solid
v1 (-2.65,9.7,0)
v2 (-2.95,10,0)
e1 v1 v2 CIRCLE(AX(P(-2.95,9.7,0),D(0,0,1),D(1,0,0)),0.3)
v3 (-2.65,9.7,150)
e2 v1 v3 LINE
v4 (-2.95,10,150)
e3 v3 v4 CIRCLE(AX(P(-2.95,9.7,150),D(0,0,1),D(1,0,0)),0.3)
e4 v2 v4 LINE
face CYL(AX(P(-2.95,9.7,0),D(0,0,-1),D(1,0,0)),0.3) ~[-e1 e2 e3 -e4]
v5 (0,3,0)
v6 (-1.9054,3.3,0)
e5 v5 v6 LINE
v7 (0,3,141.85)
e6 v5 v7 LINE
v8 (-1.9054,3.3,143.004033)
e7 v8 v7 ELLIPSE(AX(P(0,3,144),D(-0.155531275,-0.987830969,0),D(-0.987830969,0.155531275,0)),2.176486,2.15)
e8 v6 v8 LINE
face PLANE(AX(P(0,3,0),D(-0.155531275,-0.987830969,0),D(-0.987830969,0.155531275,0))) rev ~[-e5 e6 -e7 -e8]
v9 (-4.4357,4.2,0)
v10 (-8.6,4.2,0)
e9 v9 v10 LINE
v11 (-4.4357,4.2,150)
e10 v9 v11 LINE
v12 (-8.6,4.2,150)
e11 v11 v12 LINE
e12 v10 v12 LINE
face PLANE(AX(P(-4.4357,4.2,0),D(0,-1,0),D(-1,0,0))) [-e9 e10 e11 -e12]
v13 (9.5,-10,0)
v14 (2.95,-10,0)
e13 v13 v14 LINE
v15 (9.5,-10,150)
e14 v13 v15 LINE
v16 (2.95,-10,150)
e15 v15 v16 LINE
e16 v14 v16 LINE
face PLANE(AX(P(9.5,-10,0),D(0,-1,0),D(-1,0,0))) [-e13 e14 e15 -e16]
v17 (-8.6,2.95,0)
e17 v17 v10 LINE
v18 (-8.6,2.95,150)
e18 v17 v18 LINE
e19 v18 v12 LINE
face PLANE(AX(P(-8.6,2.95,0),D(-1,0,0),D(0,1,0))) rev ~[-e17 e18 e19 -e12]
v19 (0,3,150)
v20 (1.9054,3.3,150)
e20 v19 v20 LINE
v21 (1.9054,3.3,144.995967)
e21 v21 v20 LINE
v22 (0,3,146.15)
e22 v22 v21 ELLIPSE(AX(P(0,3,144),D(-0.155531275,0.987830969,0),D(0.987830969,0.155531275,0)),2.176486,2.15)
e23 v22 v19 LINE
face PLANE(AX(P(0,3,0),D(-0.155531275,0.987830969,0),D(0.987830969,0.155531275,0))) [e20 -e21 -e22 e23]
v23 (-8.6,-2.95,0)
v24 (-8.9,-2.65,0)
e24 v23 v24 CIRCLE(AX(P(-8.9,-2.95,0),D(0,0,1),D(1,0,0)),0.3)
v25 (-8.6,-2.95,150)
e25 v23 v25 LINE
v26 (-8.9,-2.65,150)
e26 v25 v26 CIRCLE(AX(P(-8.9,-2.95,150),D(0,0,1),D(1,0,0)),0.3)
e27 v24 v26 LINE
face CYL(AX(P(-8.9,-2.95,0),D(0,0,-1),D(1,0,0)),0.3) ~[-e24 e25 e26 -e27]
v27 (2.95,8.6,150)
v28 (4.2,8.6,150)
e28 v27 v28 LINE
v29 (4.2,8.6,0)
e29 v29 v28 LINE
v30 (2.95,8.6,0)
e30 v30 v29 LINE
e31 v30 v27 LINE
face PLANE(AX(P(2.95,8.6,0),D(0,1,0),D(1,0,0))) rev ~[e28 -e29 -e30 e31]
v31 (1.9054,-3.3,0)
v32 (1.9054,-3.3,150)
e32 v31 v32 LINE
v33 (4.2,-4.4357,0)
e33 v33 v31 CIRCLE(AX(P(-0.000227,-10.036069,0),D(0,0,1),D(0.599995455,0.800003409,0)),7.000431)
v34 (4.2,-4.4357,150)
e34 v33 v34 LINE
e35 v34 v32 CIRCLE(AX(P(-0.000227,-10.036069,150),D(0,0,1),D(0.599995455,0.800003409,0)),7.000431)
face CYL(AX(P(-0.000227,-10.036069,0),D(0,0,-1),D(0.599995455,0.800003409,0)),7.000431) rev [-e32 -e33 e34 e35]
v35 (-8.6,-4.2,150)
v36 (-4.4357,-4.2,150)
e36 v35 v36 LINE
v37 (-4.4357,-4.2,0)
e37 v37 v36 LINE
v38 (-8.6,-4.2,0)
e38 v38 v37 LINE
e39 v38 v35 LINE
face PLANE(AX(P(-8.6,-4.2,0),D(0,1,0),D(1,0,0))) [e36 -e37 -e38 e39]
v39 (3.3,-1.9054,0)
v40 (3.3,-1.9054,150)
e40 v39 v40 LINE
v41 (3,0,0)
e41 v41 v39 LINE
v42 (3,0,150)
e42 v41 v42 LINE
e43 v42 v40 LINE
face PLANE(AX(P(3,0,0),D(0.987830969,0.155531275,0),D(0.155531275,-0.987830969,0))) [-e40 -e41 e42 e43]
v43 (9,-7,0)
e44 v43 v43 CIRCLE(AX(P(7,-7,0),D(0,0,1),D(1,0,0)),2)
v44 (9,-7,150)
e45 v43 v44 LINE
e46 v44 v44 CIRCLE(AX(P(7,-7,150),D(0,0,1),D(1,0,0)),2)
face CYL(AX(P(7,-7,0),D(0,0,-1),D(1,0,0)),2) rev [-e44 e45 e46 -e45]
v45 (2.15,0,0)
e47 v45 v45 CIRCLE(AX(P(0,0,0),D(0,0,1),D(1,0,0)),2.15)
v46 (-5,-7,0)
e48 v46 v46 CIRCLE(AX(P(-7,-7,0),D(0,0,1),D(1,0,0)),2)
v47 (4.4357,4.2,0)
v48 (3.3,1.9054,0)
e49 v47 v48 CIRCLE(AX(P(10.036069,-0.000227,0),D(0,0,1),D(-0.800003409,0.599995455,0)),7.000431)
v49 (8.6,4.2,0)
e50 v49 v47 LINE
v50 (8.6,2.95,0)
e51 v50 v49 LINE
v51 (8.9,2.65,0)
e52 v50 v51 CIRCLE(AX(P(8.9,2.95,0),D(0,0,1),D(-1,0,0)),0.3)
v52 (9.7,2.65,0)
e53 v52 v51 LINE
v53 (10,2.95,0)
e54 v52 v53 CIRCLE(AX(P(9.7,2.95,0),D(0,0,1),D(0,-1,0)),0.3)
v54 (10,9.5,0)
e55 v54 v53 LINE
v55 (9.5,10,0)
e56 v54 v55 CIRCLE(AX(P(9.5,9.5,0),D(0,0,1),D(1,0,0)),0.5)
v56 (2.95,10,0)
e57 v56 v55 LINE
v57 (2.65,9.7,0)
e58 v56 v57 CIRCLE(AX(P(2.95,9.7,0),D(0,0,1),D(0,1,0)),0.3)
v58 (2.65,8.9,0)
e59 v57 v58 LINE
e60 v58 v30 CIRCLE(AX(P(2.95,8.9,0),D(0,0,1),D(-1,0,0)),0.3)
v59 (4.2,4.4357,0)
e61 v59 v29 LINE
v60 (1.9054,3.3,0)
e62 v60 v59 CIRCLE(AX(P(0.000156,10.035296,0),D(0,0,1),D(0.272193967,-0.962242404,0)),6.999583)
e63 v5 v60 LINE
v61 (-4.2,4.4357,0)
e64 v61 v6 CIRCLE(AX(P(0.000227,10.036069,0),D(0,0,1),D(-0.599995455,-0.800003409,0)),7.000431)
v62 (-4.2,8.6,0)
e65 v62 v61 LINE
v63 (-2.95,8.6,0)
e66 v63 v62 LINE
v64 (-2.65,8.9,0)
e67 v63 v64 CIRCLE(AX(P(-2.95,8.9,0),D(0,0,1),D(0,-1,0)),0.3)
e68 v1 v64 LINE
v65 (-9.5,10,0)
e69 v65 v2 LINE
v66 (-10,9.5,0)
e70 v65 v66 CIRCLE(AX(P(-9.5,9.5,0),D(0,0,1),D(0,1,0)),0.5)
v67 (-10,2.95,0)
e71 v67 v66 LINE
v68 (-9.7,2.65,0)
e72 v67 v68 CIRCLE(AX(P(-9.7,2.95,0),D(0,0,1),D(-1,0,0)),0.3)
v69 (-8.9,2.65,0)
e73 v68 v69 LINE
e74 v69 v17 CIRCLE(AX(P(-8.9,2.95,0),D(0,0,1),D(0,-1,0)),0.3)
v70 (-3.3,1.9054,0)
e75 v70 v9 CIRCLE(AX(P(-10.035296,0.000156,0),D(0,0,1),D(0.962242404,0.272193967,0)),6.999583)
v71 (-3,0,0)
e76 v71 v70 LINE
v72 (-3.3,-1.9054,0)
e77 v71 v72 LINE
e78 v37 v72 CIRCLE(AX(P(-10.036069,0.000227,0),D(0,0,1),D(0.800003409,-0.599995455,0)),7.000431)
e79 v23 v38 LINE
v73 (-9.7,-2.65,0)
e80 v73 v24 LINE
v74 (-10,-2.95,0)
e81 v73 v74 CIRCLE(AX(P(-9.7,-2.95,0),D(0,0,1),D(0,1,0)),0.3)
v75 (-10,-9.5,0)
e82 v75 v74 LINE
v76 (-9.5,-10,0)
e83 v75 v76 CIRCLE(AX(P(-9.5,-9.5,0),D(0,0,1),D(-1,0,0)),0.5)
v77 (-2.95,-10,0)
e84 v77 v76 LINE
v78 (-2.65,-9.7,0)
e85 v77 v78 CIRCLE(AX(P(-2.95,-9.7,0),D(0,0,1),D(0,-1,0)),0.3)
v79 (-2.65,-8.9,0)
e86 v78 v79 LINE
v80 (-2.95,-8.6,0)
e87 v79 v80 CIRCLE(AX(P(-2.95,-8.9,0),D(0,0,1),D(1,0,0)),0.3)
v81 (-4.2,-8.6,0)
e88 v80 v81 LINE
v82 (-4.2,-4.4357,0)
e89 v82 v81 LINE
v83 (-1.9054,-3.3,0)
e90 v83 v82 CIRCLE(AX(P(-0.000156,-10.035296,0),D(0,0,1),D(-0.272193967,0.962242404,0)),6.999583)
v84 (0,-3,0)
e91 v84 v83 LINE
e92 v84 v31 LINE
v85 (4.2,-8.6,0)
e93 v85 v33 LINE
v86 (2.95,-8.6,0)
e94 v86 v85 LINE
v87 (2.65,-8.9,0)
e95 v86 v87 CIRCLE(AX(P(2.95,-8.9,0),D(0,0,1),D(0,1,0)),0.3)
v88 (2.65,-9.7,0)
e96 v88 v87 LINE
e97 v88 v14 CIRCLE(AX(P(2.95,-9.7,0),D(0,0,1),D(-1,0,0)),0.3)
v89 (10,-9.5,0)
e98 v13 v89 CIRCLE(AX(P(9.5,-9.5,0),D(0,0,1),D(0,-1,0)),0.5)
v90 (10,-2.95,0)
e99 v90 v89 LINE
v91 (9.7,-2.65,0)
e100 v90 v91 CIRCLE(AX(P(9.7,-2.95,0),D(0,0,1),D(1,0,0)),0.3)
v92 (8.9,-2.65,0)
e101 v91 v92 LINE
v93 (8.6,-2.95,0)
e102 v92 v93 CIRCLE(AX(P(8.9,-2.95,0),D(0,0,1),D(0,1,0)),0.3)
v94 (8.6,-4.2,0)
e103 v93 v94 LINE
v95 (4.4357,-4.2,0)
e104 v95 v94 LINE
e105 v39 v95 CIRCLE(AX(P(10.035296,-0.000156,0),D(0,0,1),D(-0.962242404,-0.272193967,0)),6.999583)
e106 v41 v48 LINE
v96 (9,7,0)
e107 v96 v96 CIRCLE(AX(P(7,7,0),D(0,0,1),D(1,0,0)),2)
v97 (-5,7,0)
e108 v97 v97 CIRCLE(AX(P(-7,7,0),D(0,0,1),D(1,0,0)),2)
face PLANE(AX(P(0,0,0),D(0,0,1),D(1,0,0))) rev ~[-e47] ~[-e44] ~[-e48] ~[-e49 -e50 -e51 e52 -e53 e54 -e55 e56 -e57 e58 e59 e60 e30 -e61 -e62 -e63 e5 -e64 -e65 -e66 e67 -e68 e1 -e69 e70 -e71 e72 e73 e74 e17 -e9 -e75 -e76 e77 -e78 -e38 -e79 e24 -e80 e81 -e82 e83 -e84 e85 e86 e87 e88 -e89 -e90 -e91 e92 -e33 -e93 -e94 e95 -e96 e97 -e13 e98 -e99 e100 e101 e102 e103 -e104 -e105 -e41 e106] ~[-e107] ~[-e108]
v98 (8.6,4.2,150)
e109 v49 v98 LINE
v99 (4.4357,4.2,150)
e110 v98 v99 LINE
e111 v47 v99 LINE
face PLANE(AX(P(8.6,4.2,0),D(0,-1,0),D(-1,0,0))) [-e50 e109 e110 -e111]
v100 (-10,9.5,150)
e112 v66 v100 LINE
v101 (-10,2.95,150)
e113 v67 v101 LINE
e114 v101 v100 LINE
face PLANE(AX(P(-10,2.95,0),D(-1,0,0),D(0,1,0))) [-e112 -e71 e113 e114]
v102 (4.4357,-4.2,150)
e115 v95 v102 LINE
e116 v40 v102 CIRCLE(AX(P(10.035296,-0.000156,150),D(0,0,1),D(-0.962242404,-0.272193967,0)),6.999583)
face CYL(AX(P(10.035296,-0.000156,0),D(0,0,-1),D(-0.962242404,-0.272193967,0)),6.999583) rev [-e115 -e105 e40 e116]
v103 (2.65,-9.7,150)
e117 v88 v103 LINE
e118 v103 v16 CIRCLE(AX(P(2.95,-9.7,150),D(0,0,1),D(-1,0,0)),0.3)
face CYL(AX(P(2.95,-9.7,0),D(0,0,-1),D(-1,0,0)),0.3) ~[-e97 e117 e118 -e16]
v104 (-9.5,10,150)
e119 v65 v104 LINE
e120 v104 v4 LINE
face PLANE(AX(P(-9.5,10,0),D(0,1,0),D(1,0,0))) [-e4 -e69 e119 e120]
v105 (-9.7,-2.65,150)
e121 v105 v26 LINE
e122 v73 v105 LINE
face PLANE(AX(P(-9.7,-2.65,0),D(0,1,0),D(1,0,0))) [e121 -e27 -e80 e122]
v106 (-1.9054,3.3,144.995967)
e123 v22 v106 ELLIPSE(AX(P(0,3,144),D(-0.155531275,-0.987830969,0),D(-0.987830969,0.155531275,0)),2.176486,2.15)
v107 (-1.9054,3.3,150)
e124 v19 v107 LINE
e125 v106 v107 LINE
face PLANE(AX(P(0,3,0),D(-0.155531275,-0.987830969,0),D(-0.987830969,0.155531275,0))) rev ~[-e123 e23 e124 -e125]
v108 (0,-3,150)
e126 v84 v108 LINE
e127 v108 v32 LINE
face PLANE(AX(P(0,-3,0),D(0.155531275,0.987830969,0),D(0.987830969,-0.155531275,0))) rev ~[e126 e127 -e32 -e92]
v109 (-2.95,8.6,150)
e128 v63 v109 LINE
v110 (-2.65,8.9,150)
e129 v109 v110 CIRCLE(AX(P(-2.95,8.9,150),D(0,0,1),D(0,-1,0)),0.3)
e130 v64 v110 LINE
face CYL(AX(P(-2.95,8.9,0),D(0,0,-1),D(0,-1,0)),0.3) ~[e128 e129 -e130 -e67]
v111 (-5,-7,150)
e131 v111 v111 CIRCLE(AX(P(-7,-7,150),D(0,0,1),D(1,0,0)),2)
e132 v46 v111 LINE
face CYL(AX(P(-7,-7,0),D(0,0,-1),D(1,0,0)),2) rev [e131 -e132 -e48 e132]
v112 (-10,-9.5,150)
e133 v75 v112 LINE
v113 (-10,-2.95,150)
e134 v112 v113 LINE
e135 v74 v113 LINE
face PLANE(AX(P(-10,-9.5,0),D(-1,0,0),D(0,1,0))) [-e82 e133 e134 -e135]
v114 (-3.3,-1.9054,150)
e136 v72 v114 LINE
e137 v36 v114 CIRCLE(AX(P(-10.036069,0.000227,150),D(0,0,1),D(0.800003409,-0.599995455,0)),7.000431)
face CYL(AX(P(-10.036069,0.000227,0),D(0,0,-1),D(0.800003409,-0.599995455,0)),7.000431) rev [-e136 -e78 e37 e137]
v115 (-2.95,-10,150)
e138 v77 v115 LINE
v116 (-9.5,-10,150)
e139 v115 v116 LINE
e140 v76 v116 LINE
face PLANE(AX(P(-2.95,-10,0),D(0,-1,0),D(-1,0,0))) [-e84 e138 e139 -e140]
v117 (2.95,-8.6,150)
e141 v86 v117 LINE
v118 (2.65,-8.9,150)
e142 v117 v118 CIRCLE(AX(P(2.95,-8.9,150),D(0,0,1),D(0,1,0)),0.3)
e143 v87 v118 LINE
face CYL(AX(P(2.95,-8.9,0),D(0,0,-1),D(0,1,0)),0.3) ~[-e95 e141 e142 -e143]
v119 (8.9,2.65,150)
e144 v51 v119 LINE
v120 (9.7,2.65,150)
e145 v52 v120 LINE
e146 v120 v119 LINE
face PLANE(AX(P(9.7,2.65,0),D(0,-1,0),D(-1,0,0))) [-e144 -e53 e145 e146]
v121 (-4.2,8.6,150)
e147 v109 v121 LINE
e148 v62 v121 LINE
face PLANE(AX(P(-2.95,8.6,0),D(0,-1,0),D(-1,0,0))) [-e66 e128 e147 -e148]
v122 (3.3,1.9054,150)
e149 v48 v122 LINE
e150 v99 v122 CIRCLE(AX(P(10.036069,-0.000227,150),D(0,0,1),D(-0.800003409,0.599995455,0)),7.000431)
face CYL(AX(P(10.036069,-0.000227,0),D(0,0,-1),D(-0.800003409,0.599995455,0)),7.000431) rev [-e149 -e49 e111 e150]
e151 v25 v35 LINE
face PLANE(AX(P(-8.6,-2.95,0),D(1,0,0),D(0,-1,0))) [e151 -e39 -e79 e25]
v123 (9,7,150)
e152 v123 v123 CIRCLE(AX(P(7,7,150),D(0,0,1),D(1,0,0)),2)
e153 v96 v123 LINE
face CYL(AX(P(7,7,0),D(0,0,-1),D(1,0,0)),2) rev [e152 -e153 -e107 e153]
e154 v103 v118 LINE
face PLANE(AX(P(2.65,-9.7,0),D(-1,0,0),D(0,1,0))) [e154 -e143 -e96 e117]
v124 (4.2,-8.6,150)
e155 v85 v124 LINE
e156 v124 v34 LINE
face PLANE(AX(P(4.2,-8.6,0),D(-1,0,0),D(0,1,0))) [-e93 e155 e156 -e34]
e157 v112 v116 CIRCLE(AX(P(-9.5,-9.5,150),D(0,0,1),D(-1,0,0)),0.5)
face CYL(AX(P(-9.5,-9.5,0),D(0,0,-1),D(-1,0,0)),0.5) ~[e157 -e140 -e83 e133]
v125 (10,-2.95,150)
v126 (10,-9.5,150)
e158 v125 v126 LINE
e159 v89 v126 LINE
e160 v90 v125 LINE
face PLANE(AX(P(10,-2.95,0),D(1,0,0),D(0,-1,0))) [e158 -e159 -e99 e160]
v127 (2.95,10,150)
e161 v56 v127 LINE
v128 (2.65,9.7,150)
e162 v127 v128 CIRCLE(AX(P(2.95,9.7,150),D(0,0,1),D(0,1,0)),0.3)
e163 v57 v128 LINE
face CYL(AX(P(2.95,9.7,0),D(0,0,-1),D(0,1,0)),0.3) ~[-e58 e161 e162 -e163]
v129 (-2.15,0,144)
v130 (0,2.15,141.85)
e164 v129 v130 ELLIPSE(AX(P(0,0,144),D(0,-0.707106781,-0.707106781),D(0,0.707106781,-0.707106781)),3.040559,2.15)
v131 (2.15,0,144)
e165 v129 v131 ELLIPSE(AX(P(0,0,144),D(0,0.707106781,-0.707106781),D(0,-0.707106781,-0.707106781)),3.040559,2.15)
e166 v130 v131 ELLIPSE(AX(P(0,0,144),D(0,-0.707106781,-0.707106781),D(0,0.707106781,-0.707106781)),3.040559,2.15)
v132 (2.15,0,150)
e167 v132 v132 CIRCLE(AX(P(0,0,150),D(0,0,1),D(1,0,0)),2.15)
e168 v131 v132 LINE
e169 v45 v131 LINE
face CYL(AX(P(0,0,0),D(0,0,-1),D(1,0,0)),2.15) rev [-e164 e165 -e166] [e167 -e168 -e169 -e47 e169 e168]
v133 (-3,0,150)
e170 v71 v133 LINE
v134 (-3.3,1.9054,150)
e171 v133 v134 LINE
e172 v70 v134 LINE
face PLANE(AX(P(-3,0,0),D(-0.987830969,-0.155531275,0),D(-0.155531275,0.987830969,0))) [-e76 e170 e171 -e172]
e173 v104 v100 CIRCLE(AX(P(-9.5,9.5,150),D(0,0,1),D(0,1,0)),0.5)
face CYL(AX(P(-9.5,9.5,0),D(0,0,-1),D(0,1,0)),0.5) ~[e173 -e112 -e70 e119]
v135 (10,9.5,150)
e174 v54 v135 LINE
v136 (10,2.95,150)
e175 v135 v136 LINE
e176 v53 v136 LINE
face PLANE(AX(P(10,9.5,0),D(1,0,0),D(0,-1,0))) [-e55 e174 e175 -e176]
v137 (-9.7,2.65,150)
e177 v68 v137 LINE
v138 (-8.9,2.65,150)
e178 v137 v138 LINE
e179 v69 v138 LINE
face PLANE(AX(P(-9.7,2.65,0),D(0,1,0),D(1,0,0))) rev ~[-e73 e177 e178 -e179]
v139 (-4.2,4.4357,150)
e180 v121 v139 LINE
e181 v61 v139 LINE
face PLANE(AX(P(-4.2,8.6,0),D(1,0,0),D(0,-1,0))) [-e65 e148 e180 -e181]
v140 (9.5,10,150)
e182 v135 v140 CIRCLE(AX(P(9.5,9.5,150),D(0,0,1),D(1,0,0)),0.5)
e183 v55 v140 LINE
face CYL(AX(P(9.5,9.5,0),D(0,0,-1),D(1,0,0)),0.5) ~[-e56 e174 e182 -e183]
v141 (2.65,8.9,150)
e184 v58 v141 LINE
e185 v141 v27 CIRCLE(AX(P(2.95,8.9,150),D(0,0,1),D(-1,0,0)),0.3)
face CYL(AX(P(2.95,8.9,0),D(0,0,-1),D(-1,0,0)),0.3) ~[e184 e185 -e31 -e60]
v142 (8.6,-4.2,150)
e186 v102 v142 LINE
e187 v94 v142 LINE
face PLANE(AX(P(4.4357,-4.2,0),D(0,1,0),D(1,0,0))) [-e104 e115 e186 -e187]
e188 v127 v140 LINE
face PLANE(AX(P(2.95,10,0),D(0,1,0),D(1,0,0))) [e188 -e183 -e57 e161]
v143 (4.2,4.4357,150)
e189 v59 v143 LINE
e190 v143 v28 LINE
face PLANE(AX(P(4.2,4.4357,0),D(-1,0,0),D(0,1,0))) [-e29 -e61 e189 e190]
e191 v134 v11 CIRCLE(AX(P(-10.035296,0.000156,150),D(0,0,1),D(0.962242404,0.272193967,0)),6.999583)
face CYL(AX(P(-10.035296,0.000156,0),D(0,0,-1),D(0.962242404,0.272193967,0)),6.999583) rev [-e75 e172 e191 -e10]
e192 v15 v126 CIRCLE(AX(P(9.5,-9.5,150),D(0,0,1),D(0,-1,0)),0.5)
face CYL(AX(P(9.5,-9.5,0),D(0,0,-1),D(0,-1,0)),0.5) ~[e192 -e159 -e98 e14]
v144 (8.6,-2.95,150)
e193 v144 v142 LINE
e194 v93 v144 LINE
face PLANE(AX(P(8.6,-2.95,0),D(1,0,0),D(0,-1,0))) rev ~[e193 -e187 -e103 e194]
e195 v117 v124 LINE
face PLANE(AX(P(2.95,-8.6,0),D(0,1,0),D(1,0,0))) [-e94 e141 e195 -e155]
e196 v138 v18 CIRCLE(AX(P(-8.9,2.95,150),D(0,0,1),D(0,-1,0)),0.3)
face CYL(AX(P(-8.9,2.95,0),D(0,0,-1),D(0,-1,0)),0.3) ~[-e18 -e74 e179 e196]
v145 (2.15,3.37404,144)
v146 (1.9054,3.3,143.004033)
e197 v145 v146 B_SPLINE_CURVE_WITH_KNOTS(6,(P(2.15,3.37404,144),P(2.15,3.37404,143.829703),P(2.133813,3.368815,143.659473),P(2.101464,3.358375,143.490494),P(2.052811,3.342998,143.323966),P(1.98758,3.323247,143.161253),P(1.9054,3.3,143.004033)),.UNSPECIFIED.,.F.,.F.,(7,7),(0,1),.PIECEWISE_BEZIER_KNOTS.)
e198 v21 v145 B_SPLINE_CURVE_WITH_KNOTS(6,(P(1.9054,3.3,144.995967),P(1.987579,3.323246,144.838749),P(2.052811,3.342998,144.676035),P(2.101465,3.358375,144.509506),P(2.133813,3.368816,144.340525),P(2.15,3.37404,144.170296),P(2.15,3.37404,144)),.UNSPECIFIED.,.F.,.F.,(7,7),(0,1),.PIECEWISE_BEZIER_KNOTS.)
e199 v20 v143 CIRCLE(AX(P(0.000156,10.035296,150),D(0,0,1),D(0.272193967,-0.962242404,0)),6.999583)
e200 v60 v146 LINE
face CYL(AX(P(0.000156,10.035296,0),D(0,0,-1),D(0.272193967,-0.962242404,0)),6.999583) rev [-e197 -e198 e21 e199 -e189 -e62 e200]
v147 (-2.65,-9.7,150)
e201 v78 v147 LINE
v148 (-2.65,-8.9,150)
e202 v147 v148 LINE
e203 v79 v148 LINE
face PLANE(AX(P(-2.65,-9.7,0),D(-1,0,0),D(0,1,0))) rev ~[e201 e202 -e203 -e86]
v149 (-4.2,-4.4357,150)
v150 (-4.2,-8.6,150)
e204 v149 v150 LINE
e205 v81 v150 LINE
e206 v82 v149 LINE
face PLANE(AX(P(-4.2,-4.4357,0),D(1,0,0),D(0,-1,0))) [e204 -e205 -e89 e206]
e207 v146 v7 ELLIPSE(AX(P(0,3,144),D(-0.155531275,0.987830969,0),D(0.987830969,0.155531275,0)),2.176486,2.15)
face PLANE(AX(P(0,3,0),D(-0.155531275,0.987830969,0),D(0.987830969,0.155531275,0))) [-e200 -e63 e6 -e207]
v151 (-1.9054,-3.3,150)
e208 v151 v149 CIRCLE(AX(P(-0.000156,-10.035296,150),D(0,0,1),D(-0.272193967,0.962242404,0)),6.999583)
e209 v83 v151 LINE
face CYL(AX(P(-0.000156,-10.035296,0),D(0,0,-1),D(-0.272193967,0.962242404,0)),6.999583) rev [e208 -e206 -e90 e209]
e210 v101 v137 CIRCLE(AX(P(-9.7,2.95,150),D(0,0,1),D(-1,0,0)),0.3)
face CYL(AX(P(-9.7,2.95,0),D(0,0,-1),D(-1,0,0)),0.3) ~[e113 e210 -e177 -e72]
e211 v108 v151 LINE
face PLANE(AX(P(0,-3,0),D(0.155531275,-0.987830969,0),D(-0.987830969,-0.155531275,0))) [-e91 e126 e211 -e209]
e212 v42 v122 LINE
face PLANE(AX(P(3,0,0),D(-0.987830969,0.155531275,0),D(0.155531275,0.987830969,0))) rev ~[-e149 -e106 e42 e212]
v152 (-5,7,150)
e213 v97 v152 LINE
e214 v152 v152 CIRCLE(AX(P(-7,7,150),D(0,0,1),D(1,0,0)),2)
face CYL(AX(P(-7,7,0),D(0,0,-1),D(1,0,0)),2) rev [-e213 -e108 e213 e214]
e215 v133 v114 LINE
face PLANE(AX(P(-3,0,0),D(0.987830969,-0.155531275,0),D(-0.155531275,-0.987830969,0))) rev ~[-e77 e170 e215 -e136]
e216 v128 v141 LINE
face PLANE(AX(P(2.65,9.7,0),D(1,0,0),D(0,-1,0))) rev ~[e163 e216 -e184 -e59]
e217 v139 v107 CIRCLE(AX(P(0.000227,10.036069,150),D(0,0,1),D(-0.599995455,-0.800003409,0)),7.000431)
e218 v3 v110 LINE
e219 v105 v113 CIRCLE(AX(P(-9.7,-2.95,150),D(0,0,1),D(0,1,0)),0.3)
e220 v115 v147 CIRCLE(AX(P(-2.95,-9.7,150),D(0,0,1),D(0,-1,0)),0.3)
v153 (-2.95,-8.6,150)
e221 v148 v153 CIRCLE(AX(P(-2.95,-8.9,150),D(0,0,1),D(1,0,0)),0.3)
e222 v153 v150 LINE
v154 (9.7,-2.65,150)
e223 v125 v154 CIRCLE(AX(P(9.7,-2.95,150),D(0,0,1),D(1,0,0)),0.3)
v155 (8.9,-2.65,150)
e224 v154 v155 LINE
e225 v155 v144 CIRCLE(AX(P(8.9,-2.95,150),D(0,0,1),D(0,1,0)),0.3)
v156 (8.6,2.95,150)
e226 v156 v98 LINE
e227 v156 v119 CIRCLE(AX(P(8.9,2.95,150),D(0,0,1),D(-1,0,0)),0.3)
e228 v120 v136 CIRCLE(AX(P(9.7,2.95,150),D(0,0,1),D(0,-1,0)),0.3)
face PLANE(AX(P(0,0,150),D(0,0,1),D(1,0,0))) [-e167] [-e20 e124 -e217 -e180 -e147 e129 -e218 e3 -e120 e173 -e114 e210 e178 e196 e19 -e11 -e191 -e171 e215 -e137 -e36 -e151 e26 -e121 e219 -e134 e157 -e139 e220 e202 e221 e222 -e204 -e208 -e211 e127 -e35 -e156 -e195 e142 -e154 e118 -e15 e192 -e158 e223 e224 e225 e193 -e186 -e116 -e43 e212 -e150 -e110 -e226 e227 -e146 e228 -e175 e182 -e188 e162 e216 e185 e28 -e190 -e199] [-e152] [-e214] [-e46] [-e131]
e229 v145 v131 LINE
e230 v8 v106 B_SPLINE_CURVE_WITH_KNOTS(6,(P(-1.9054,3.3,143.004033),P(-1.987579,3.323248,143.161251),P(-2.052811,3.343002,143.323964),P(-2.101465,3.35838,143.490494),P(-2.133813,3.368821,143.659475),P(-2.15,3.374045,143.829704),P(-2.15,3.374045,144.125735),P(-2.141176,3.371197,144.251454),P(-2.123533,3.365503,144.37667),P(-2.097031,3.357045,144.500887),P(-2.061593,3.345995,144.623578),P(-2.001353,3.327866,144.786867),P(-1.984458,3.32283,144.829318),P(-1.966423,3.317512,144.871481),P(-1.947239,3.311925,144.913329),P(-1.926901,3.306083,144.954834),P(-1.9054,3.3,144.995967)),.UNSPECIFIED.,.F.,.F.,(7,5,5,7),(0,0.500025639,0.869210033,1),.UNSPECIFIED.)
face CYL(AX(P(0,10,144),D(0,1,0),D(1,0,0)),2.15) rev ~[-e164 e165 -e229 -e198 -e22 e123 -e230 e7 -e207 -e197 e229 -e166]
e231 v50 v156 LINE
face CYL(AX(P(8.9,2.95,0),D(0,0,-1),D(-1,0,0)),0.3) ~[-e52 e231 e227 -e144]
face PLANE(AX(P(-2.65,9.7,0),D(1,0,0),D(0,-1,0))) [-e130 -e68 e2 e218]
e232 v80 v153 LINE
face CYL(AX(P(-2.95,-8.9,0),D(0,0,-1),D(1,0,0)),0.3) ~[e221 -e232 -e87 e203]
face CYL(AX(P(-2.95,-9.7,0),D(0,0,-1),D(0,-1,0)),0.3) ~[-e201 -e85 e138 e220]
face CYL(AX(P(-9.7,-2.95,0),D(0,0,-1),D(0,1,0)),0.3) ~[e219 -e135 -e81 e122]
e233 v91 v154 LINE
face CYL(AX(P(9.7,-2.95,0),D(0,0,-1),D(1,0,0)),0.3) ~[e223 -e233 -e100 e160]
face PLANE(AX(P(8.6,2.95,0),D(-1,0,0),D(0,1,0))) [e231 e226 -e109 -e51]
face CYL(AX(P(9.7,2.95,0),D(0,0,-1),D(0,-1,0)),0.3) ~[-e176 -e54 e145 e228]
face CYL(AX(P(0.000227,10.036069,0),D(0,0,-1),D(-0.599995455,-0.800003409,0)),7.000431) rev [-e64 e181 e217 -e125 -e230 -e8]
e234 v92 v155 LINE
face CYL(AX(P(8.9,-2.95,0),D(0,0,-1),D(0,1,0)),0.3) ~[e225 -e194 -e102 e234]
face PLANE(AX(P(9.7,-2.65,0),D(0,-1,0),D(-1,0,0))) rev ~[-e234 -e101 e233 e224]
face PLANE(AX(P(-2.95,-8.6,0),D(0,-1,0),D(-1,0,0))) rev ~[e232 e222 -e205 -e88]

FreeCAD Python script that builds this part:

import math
import FreeCAD as App
import Part
import Sketcher
from FreeCAD import Vector

doc = App.newDocument("Part")
params = doc.addObject("Spreadsheet::Sheet", "Params")
for row, (alias, value) in enumerate([
    ("sketch1_diameter", "4 mm"),
    ("sketch1_radius", "7 mm"),
    ("sketch1_diameter2", "4.3 mm"),
    ("sketch1_radius2", "0.3 mm"),
    ("sketch1_radius3", "0.5 mm"),
    ("pad1_length", "150 mm"),
    ("sketch2_diameter", "4.3 mm"),
    ("pocket1_length", "10 mm"),
], start=1):
    params.set(f"A{row}", alias)
    params.set(f"B{row}", "=" + value)
    params.setAlias(f"B{row}", alias)

body = doc.addObject("PartDesign::Body", "Body")

sketch1 = body.newObject("Sketcher::SketchObject", "Sketch")
sketch1.AttachmentSupport = (doc.getObject("XY_Plane"), [""])
sketch1.MapMode = "FlatFace"
sketch1.addGeometry(Part.LineSegment(Vector(9.5, 10, 0), Vector(2.95, 10, 0)), False)
sketch1.addGeometry(Part.ArcOfCircle(Part.Circle(Vector(2.95, 9.7, 0), Vector(0, 0, 1), 0.3), math.radians(90), math.radians(180)), False)
sketch1.addGeometry(Part.LineSegment(Vector(2.65, 9.7, 0), Vector(2.65, 8.9, 0)), False)
sketch1.addGeometry(Part.ArcOfCircle(Part.Circle(Vector(2.95, 8.9, 0), Vector(0, 0, 1), 0.3), math.radians(180), math.radians(270)), False)
sketch1.addGeometry(Part.LineSegment(Vector(2.95, 8.6, 0), Vector(4.2, 8.6, 0)), False)
sketch1.addGeometry(Part.LineSegment(Vector(4.2, 8.6, 0), Vector(4.2, 4.44, 0)), False)
sketch1.addGeometry(Part.ArcOfCircle(Part.Circle(Vector(0, 10.04, 0), Vector(0, 0, 1), 7), math.radians(-74), math.radians(-53)), False)
sketch1.addGeometry(Part.LineSegment(Vector(1.91, 3.3, 0), Vector(0, 3, 0)), False)
sketch1.addGeometry(Part.LineSegment(Vector(0, 3, 0), Vector(-1.91, 3.3, 0)), False)
sketch1.addGeometry(Part.ArcOfCircle(Part.Circle(Vector(0, 10.04, 0), Vector(0, 0, 1), 7), math.radians(-127), math.radians(-106)), False)
sketch1.addGeometry(Part.LineSegment(Vector(-4.2, 4.44, 0), Vector(-4.2, 8.6, 0)), False)
sketch1.addGeometry(Part.LineSegment(Vector(-4.2, 8.6, 0), Vector(-2.95, 8.6, 0)), False)
sketch1.addGeometry(Part.ArcOfCircle(Part.Circle(Vector(-2.95, 8.9, 0), Vector(0, 0, 1), 0.3), math.radians(-90), math.radians(0)), False)
sketch1.addGeometry(Part.LineSegment(Vector(-2.65, 8.9, 0), Vector(-2.65, 9.7, 0)), False)
sketch1.addGeometry(Part.ArcOfCircle(Part.Circle(Vector(-2.95, 9.7, 0), Vector(0, 0, 1), 0.3), math.radians(0), math.radians(90)), False)
sketch1.addGeometry(Part.LineSegment(Vector(-2.95, 10, 0), Vector(-9.5, 10, 0)), False)
sketch1.addGeometry(Part.ArcOfCircle(Part.Circle(Vector(-9.5, 9.5, 0), Vector(0, 0, 1), 0.5), math.radians(90), math.radians(180)), False)
sketch1.addGeometry(Part.LineSegment(Vector(-10, 9.5, 0), Vector(-10, 2.95, 0)), False)
sketch1.addGeometry(Part.ArcOfCircle(Part.Circle(Vector(-9.7, 2.95, 0), Vector(0, 0, 1), 0.3), math.radians(180), math.radians(270)), False)
sketch1.addGeometry(Part.LineSegment(Vector(-9.7, 2.65, 0), Vector(-8.9, 2.65, 0)), False)
sketch1.addGeometry(Part.ArcOfCircle(Part.Circle(Vector(-8.9, 2.95, 0), Vector(0, 0, 1), 0.3), math.radians(-90), math.radians(0)), False)
sketch1.addGeometry(Part.LineSegment(Vector(-8.6, 2.95, 0), Vector(-8.6, 4.2, 0)), False)
sketch1.addGeometry(Part.LineSegment(Vector(-8.6, 4.2, 0), Vector(-4.44, 4.2, 0)), False)
sketch1.addGeometry(Part.ArcOfCircle(Part.Circle(Vector(-10.04, 0, 0), Vector(0, 0, 1), 7), math.radians(16), math.radians(37)), False)
sketch1.addGeometry(Part.LineSegment(Vector(-3.3, 1.91, 0), Vector(-3, 0, 0)), False)
sketch1.addGeometry(Part.LineSegment(Vector(-3, 0, 0), Vector(-3.3, -1.91, 0)), False)
sketch1.addGeometry(Part.ArcOfCircle(Part.Circle(Vector(-10.04, 0, 0), Vector(0, 0, 1), 7), math.radians(-37), math.radians(-16)), False)
sketch1.addGeometry(Part.LineSegment(Vector(-4.44, -4.2, 0), Vector(-8.6, -4.2, 0)), False)
sketch1.addGeometry(Part.LineSegment(Vector(-8.6, -4.2, 0), Vector(-8.6, -2.95, 0)), False)
sketch1.addGeometry(Part.ArcOfCircle(Part.Circle(Vector(-8.9, -2.95, 0), Vector(0, 0, 1), 0.3), math.radians(0), math.radians(90)), False)
sketch1.addGeometry(Part.LineSegment(Vector(-8.9, -2.65, 0), Vector(-9.7, -2.65, 0)), False)
sketch1.addGeometry(Part.ArcOfCircle(Part.Circle(Vector(-9.7, -2.95, 0), Vector(0, 0, 1), 0.3), math.radians(90), math.radians(180)), False)
sketch1.addGeometry(Part.LineSegment(Vector(-10, -2.95, 0), Vector(-10, -9.5, 0)), False)
sketch1.addGeometry(Part.ArcOfCircle(Part.Circle(Vector(-9.5, -9.5, 0), Vector(0, 0, 1), 0.5), math.radians(180), math.radians(270)), False)
sketch1.addGeometry(Part.LineSegment(Vector(-9.5, -10, 0), Vector(-2.95, -10, 0)), False)
sketch1.addGeometry(Part.ArcOfCircle(Part.Circle(Vector(-2.95, -9.7, 0), Vector(0, 0, 1), 0.3), math.radians(-90), math.radians(0)), False)
sketch1.addGeometry(Part.LineSegment(Vector(-2.65, -9.7, 0), Vector(-2.65, -8.9, 0)), False)
sketch1.addGeometry(Part.ArcOfCircle(Part.Circle(Vector(-2.95, -8.9, 0), Vector(0, 0, 1), 0.3), math.radians(0), math.radians(90)), False)
sketch1.addGeometry(Part.LineSegment(Vector(-2.95, -8.6, 0), Vector(-4.2, -8.6, 0)), False)
sketch1.addGeometry(Part.LineSegment(Vector(-4.2, -8.6, 0), Vector(-4.2, -4.44, 0)), False)
sketch1.addGeometry(Part.ArcOfCircle(Part.Circle(Vector(0, -10.04, 0), Vector(0, 0, 1), 7), math.radians(106), math.radians(127)), False)
sketch1.addGeometry(Part.LineSegment(Vector(-1.91, -3.3, 0), Vector(0, -3, 0)), False)
sketch1.addGeometry(Part.LineSegment(Vector(0, -3, 0), Vector(1.91, -3.3, 0)), False)
sketch1.addGeometry(Part.ArcOfCircle(Part.Circle(Vector(0, -10.04, 0), Vector(0, 0, 1), 7), math.radians(53), math.radians(74)), False)
sketch1.addGeometry(Part.LineSegment(Vector(4.2, -4.44, 0), Vector(4.2, -8.6, 0)), False)
sketch1.addGeometry(Part.LineSegment(Vector(4.2, -8.6, 0), Vector(2.95, -8.6, 0)), False)
sketch1.addGeometry(Part.ArcOfCircle(Part.Circle(Vector(2.95, -8.9, 0), Vector(0, 0, 1), 0.3), math.radians(90), math.radians(180)), False)
sketch1.addGeometry(Part.LineSegment(Vector(2.65, -8.9, 0), Vector(2.65, -9.7, 0)), False)
sketch1.addGeometry(Part.ArcOfCircle(Part.Circle(Vector(2.95, -9.7, 0), Vector(0, 0, 1), 0.3), math.radians(180), math.radians(270)), False)
sketch1.addGeometry(Part.LineSegment(Vector(2.95, -10, 0), Vector(9.5, -10, 0)), False)
sketch1.addGeometry(Part.ArcOfCircle(Part.Circle(Vector(9.5, -9.5, 0), Vector(0, 0, 1), 0.5), math.radians(-90), math.radians(0)), False)
sketch1.addGeometry(Part.LineSegment(Vector(10, -9.5, 0), Vector(10, -2.95, 0)), False)
sketch1.addGeometry(Part.ArcOfCircle(Part.Circle(Vector(9.7, -2.95, 0), Vector(0, 0, 1), 0.3), math.radians(0), math.radians(90)), False)
sketch1.addGeometry(Part.LineSegment(Vector(9.7, -2.65, 0), Vector(8.9, -2.65, 0)), False)
sketch1.addGeometry(Part.ArcOfCircle(Part.Circle(Vector(8.9, -2.95, 0), Vector(0, 0, 1), 0.3), math.radians(90), math.radians(180)), False)
sketch1.addGeometry(Part.LineSegment(Vector(8.6, -2.95, 0), Vector(8.6, -4.2, 0)), False)
sketch1.addGeometry(Part.LineSegment(Vector(8.6, -4.2, 0), Vector(4.44, -4.2, 0)), False)
sketch1.addGeometry(Part.ArcOfCircle(Part.Circle(Vector(10.04, 0, 0), Vector(0, 0, 1), 7), math.radians(-164), math.radians(-143)), False)
sketch1.addGeometry(Part.LineSegment(Vector(3.3, -1.91, 0), Vector(3, 0, 0)), False)
sketch1.addGeometry(Part.LineSegment(Vector(3, 0, 0), Vector(3.3, 1.91, 0)), False)
sketch1.addGeometry(Part.ArcOfCircle(Part.Circle(Vector(10.04, 0, 0), Vector(0, 0, 1), 7), math.radians(143), math.radians(164)), False)
sketch1.addGeometry(Part.LineSegment(Vector(4.44, 4.2, 0), Vector(8.6, 4.2, 0)), False)
sketch1.addGeometry(Part.LineSegment(Vector(8.6, 4.2, 0), Vector(8.6, 2.95, 0)), False)
sketch1.addGeometry(Part.ArcOfCircle(Part.Circle(Vector(8.9, 2.95, 0), Vector(0, 0, 1), 0.3), math.radians(180), math.radians(270)), False)
sketch1.addGeometry(Part.LineSegment(Vector(8.9, 2.65, 0), Vector(9.7, 2.65, 0)), False)
sketch1.addGeometry(Part.ArcOfCircle(Part.Circle(Vector(9.7, 2.95, 0), Vector(0, 0, 1), 0.3), math.radians(-90), math.radians(0)), False)
sketch1.addGeometry(Part.LineSegment(Vector(10, 2.95, 0), Vector(10, 9.5, 0)), False)
sketch1.addGeometry(Part.ArcOfCircle(Part.Circle(Vector(9.5, 9.5, 0), Vector(0, 0, 1), 0.5), math.radians(0), math.radians(90)), False)
sketch1.addGeometry(Part.Circle(Vector(-7, -7, 0), Vector(0, 0, 1), 2), False)
sketch1.addGeometry(Part.Circle(Vector(7, -7, 0), Vector(0, 0, 1), 2), False)
sketch1.addGeometry(Part.Circle(Vector(-7, 7, 0), Vector(0, 0, 1), 2), False)
sketch1.addGeometry(Part.Circle(Vector(0, 0, 0), Vector(0, 0, 1), 2.15), False)
sketch1.addGeometry(Part.Circle(Vector(7, 7, 0), Vector(0, 0, 1), 2), False)
sketch1.addConstraint(Sketcher.Constraint("Tangent", 0, 2, 1, 1))
sketch1.addConstraint(Sketcher.Constraint("Tangent", 1, 2, 2, 1))
sketch1.addConstraint(Sketcher.Constraint("Tangent", 2, 2, 3, 1))
sketch1.addConstraint(Sketcher.Constraint("Tangent", 3, 2, 4, 1))
sketch1.addConstraint(Sketcher.Constraint("Coincident", 4, 2, 5, 1))
sketch1.addConstraint(Sketcher.Constraint("Coincident", 5, 2, 6, 2))
sketch1.addConstraint(Sketcher.Constraint("Coincident", 6, 1, 7, 1))
sketch1.addConstraint(Sketcher.Constraint("Coincident", 7, 2, 8, 1))
sketch1.addConstraint(Sketcher.Constraint("Coincident", 8, 2, 9, 2))
sketch1.addConstraint(Sketcher.Constraint("Coincident", 9, 1, 10, 1))
sketch1.addConstraint(Sketcher.Constraint("Coincident", 10, 2, 11, 1))
sketch1.addConstraint(Sketcher.Constraint("Tangent", 11, 2, 12, 1))
sketch1.addConstraint(Sketcher.Constraint("Tangent", 12, 2, 13, 1))
sketch1.addConstraint(Sketcher.Constraint("Tangent", 13, 2, 14, 1))
sketch1.addConstraint(Sketcher.Constraint("Tangent", 14, 2, 15, 1))
sketch1.addConstraint(Sketcher.Constraint("Tangent", 15, 2, 16, 1))
sketch1.addConstraint(Sketcher.Constraint("Tangent", 16, 2, 17, 1))
sketch1.addConstraint(Sketcher.Constraint("Tangent", 17, 2, 18, 1))
sketch1.addConstraint(Sketcher.Constraint("Tangent", 18, 2, 19, 1))
sketch1.addConstraint(Sketcher.Constraint("Tangent", 19, 2, 20, 1))
sketch1.addConstraint(Sketcher.Constraint("Tangent", 20, 2, 21, 1))
sketch1.addConstraint(Sketcher.Constraint("Coincident", 21, 2, 22, 1))
sketch1.addConstraint(Sketcher.Constraint("Coincident", 22, 2, 23, 2))
sketch1.addConstraint(Sketcher.Constraint("Coincident", 23, 1, 24, 1))
sketch1.addConstraint(Sketcher.Constraint("Coincident", 24, 2, 25, 1))
sketch1.addConstraint(Sketcher.Constraint("Coincident", 25, 2, 26, 2))
sketch1.addConstraint(Sketcher.Constraint("Coincident", 26, 1, 27, 1))
sketch1.addConstraint(Sketcher.Constraint("Coincident", 27, 2, 28, 1))
sketch1.addConstraint(Sketcher.Constraint("Tangent", 28, 2, 29, 1))
sketch1.addConstraint(Sketcher.Constraint("Tangent", 29, 2, 30, 1))
sketch1.addConstraint(Sketcher.Constraint("Tangent", 30, 2, 31, 1))
sketch1.addConstraint(Sketcher.Constraint("Tangent", 31, 2, 32, 1))
sketch1.addConstraint(Sketcher.Constraint("Tangent", 32, 2, 33, 1))
sketch1.addConstraint(Sketcher.Constraint("Tangent", 33, 2, 34, 1))
sketch1.addConstraint(Sketcher.Constraint("Tangent", 34, 2, 35, 1))
sketch1.addConstraint(Sketcher.Constraint("Tangent", 35, 2, 36, 1))
sketch1.addConstraint(Sketcher.Constraint("Tangent", 36, 2, 37, 1))
sketch1.addConstraint(Sketcher.Constraint("Tangent", 37, 2, 38, 1))
sketch1.addConstraint(Sketcher.Constraint("Coincident", 38, 2, 39, 1))
sketch1.addConstraint(Sketcher.Constraint("Coincident", 39, 2, 40, 2))
sketch1.addConstraint(Sketcher.Constraint("Coincident", 40, 1, 41, 1))
sketch1.addConstraint(Sketcher.Constraint("Coincident", 41, 2, 42, 1))
sketch1.addConstraint(Sketcher.Constraint("Coincident", 42, 2, 43, 2))
sketch1.addConstraint(Sketcher.Constraint("Coincident", 43, 1, 44, 1))
sketch1.addConstraint(Sketcher.Constraint("Coincident", 44, 2, 45, 1))
sketch1.addConstraint(Sketcher.Constraint("Tangent", 45, 2, 46, 1))
sketch1.addConstraint(Sketcher.Constraint("Tangent", 46, 2, 47, 1))
sketch1.addConstraint(Sketcher.Constraint("Tangent", 47, 2, 48, 1))
sketch1.addConstraint(Sketcher.Constraint("Tangent", 48, 2, 49, 1))
sketch1.addConstraint(Sketcher.Constraint("Tangent", 49, 2, 50, 1))
sketch1.addConstraint(Sketcher.Constraint("Tangent", 50, 2, 51, 1))
sketch1.addConstraint(Sketcher.Constraint("Tangent", 51, 2, 52, 1))
sketch1.addConstraint(Sketcher.Constraint("Tangent", 52, 2, 53, 1))
sketch1.addConstraint(Sketcher.Constraint("Tangent", 53, 2, 54, 1))
sketch1.addConstraint(Sketcher.Constraint("Tangent", 54, 2, 55, 1))
sketch1.addConstraint(Sketcher.Constraint("Coincident", 55, 2, 56, 1))
sketch1.addConstraint(Sketcher.Constraint("Coincident", 56, 2, 57, 2))
sketch1.addConstraint(Sketcher.Constraint("Coincident", 57, 1, 58, 1))
sketch1.addConstraint(Sketcher.Constraint("Coincident", 58, 2, 59, 1))
sketch1.addConstraint(Sketcher.Constraint("Coincident", 59, 2, 60, 2))
sketch1.addConstraint(Sketcher.Constraint("Coincident", 60, 1, 61, 1))
sketch1.addConstraint(Sketcher.Constraint("Coincident", 61, 2, 62, 1))
sketch1.addConstraint(Sketcher.Constraint("Tangent", 62, 2, 63, 1))
sketch1.addConstraint(Sketcher.Constraint("Tangent", 63, 2, 64, 1))
sketch1.addConstraint(Sketcher.Constraint("Tangent", 64, 2, 65, 1))
sketch1.addConstraint(Sketcher.Constraint("Tangent", 65, 2, 66, 1))
sketch1.addConstraint(Sketcher.Constraint("Tangent", 66, 2, 67, 1))
sketch1.addConstraint(Sketcher.Constraint("Tangent", 67, 2, 0, 1))
sketch1.addConstraint(Sketcher.Constraint("Horizontal", 0))
sketch1.addConstraint(Sketcher.Constraint("Vertical", 2))
sketch1.addConstraint(Sketcher.Constraint("Horizontal", 4))
sketch1.addConstraint(Sketcher.Constraint("Vertical", 5))
sketch1.addConstraint(Sketcher.Constraint("Vertical", 10))
sketch1.addConstraint(Sketcher.Constraint("Horizontal", 11))
sketch1.addConstraint(Sketcher.Constraint("Vertical", 13))
sketch1.addConstraint(Sketcher.Constraint("Horizontal", 15))
sketch1.addConstraint(Sketcher.Constraint("Vertical", 17))
sketch1.addConstraint(Sketcher.Constraint("Horizontal", 19))
sketch1.addConstraint(Sketcher.Constraint("Vertical", 21))
sketch1.addConstraint(Sketcher.Constraint("Horizontal", 22))
sketch1.addConstraint(Sketcher.Constraint("Horizontal", 27))
sketch1.addConstraint(Sketcher.Constraint("Vertical", 28))
sketch1.addConstraint(Sketcher.Constraint("Horizontal", 30))
sketch1.addConstraint(Sketcher.Constraint("Vertical", 32))
sketch1.addConstraint(Sketcher.Constraint("Horizontal", 34))
sketch1.addConstraint(Sketcher.Constraint("Vertical", 36))
sketch1.addConstraint(Sketcher.Constraint("Horizontal", 38))
sketch1.addConstraint(Sketcher.Constraint("Vertical", 39))
sketch1.addConstraint(Sketcher.Constraint("Vertical", 44))
sketch1.addConstraint(Sketcher.Constraint("Horizontal", 45))
sketch1.addConstraint(Sketcher.Constraint("Vertical", 47))
sketch1.addConstraint(Sketcher.Constraint("Horizontal", 49))
sketch1.addConstraint(Sketcher.Constraint("Vertical", 51))
sketch1.addConstraint(Sketcher.Constraint("Horizontal", 53))
sketch1.addConstraint(Sketcher.Constraint("Vertical", 55))
sketch1.addConstraint(Sketcher.Constraint("Horizontal", 56))
sketch1.addConstraint(Sketcher.Constraint("Horizontal", 61))
sketch1.addConstraint(Sketcher.Constraint("Vertical", 62))
sketch1.addConstraint(Sketcher.Constraint("Horizontal", 64))
sketch1.addConstraint(Sketcher.Constraint("Vertical", 66))
sketch1.addConstraint(Sketcher.Constraint("Coincident", 71, 3, -1, 1))
sketch1.addConstraint(Sketcher.Constraint("Coincident", 9, 3, 6, 3))
sketch1.addConstraint(Sketcher.Constraint("Coincident", 26, 3, 23, 3))
sketch1.addConstraint(Sketcher.Constraint("Coincident", 43, 3, 40, 3))
sketch1.addConstraint(Sketcher.Constraint("Coincident", 60, 3, 57, 3))
sketch1.addConstraint(Sketcher.Constraint("Equal", 1, 3))
sketch1.addConstraint(Sketcher.Constraint("Equal", 6, 9))
sketch1.addConstraint(Sketcher.Constraint("Equal", 3, 12))
sketch1.addConstraint(Sketcher.Constraint("Equal", 12, 14))
sketch1.addConstraint(Sketcher.Constraint("Equal", 14, 18))
sketch1.addConstraint(Sketcher.Constraint("Equal", 18, 20))
sketch1.addConstraint(Sketcher.Constraint("Equal", 9, 23))
sketch1.addConstraint(Sketcher.Constraint("Equal", 23, 26))
sketch1.addConstraint(Sketcher.Constraint("Equal", 20, 29))
sketch1.addConstraint(Sketcher.Constraint("Equal", 29, 31))
sketch1.addConstraint(Sketcher.Constraint("Equal", 16, 33))
sketch1.addConstraint(Sketcher.Constraint("Equal", 31, 35))
sketch1.addConstraint(Sketcher.Constraint("Equal", 35, 37))
sketch1.addConstraint(Sketcher.Constraint("Equal", 26, 40))
sketch1.addConstraint(Sketcher.Constraint("Equal", 40, 43))
sketch1.addConstraint(Sketcher.Constraint("Equal", 37, 46))
sketch1.addConstraint(Sketcher.Constraint("Equal", 46, 48))
sketch1.addConstraint(Sketcher.Constraint("Equal", 33, 50))
sketch1.addConstraint(Sketcher.Constraint("Equal", 48, 52))
sketch1.addConstraint(Sketcher.Constraint("Equal", 52, 54))
sketch1.addConstraint(Sketcher.Constraint("Equal", 43, 57))
sketch1.addConstraint(Sketcher.Constraint("Equal", 57, 60))
sketch1.addConstraint(Sketcher.Constraint("Equal", 54, 63))
sketch1.addConstraint(Sketcher.Constraint("Equal", 63, 65))
sketch1.addConstraint(Sketcher.Constraint("Equal", 50, 67))
sketch1.addConstraint(Sketcher.Constraint("Equal", 68, 69))
sketch1.addConstraint(Sketcher.Constraint("Equal", 69, 70))
sketch1.addConstraint(Sketcher.Constraint("Equal", 70, 72))
sketch1.addConstraint(Sketcher.Constraint("Symmetric", 1, 3, 35, 3, -1, 1))
sketch1.addConstraint(Sketcher.Constraint("Symmetric", 6, 3, 40, 3, -1, 1))
sketch1.addConstraint(Sketcher.Constraint("Symmetric", 12, 3, 46, 3, -1, 1))
sketch1.addConstraint(Sketcher.Constraint("Symmetric", 16, 3, 50, 3, -1, 1))
sketch1.addConstraint(Sketcher.Constraint("Symmetric", 20, 3, 54, 3, -1, 1))
sketch1.addConstraint(Sketcher.Constraint("Symmetric", 23, 3, 57, 3, -1, 1))
sketch1.addConstraint(Sketcher.Constraint("Symmetric", 29, 3, 63, 3, -1, 1))
sketch1.addConstraint(Sketcher.Constraint("Symmetric", 69, 3, 70, 3, -1, 1))
sketch1.addConstraint(Sketcher.Constraint("Symmetric", 68, 3, 72, 3, -1, 1))
sketch1.addConstraint(Sketcher.Constraint("Symmetric", 4, 2, 38, 2, -1, 1))
sketch1.addConstraint(Sketcher.Constraint("Symmetric", 7, 2, 41, 2, -1, 1))
sketch1.addConstraint(Sketcher.Constraint("Symmetric", 24, 2, 58, 2, -1, 1))
sketch1.addConstraint(Sketcher.Constraint("Symmetric", 3, 3, 12, 3, -2))
sketch1.addConstraint(Sketcher.Constraint("Symmetric", 33, 3, 50, 3, -2))
sketch1.addConstraint(Sketcher.Constraint("Symmetric", 29, 3, 54, 3, -2))
sketch1.addConstraint(Sketcher.Constraint("Symmetric", 68, 3, 69, 3, -2))
sketch1.addConstraint(Sketcher.Constraint("Symmetric", 6, 1, 8, 2, -2))
sketch1.addConstraint(Sketcher.Constraint("Symmetric", 26, 1, 56, 2, -2))
sketch1.addConstraint(Sketcher.Constraint("PointOnObject", 7, 2, -2))
sketch1.addConstraint(Sketcher.Constraint("PointOnObject", 24, 2, -1))
sketch1.addConstraint(Sketcher.Constraint("Perpendicular", 7, 24))
sketch1.addConstraint(Sketcher.Constraint("Perpendicular", 8, 25))
sketch1.addConstraint(Sketcher.Constraint("Perpendicular", 24, 41))
sketch1.addConstraint(Sketcher.Constraint("Perpendicular", 25, 42))
sketch1.addConstraint(Sketcher.Constraint("Perpendicular", 41, 58))
sketch1.addConstraint(Sketcher.Constraint("Perpendicular", 42, 59))
sketch1.addConstraint(Sketcher.Constraint("Horizontal", 5, 2, 9, 1))
sketch1.addConstraint(Sketcher.Constraint("Horizontal", 39, 2, 43, 1))
sketch1.addConstraint(Sketcher.Constraint("Horizontal", 22, 2, 60, 1))
sketch1.addConstraint(Sketcher.Constraint("Vertical", 52, 3, 65, 3))
sketch1.addConstraint(Sketcher.Constraint("Vertical", 22, 2, 26, 1))
sketch1.addConstraint(Sketcher.Constraint("Equal", 64, 2))
sketch1.addConstraint(Sketcher.Constraint("Equal", 61, 5))
sketch1.addConstraint(Sketcher.Constraint("Equal", 49, 17))
sketch1.addConstraint(Sketcher.Constraint("Equal", 45, 21))
sketch1.addConstraint(Sketcher.Constraint("Equal", 8, 24))
sketch1.addConstraint(Sketcher.Constraint("Diameter", 68, 4.0))
sketch1.addConstraint(Sketcher.Constraint("Radius", 6, 7.0))
sketch1.addConstraint(Sketcher.Constraint("Diameter", 71, 4.3))
sketch1.addConstraint(Sketcher.Constraint("Radius", 1, 0.3))
sketch1.addConstraint(Sketcher.Constraint("Radius", 16, 0.5))
sketch1.addConstraint(Sketcher.Constraint("DistanceX", 68, 3, -1, 1, 7.0))
sketch1.addConstraint(Sketcher.Constraint("DistanceY", 68, 3, -1, 1, 7.0))
sketch1.addConstraint(Sketcher.Constraint("DistanceY", -1, 1, 0, 2, 10.0))
sketch1.addConstraint(Sketcher.Constraint("DistanceX", 16, 2, -1, 1, 10.0))
sketch1.addConstraint(Sketcher.Constraint("DistanceX", -1, 1, 4, 2, 4.2))
sketch1.addConstraint(Sketcher.Constraint("DistanceX", -1, 1, 1, 2, 2.65))
sketch1.addConstraint(Sketcher.Constraint("DistanceX", 19, 1, 19, 2, 0.8))
sketch1.addConstraint(Sketcher.Constraint("DistanceY", -1, 1, 7, 2, 3.0))
sketch1.addConstraint(Sketcher.Constraint("DistanceY", -1, 1, 6, 1, 3.3))
sketch1.addConstraint(Sketcher.Constraint("DistanceX", 22, 1, 22, 2, 4.1643))
sketch1.setExpression("Constraints[169]", "Params.sketch1_diameter")
sketch1.setExpression("Constraints[170]", "Params.sketch1_radius")
sketch1.setExpression("Constraints[171]", "Params.sketch1_diameter2")
sketch1.setExpression("Constraints[172]", "Params.sketch1_radius2")
sketch1.setExpression("Constraints[173]", "Params.sketch1_radius3")
pad1 = body.newObject("PartDesign::Pad", "Pad")
pad1.Profile = sketch1
pad1.setExpression("Length", "Params.pad1_length")

sketch2 = body.newObject("Sketcher::SketchObject", "Sketch001")
sketch2.AttachmentSupport = (doc.getObject("XZ_Plane"), [""])
sketch2.MapMode = "FlatFace"
sketch2.AttachmentOffset = App.Placement(Vector(0, 0, -10), App.Rotation())
sketch2.addGeometry(Part.Circle(Vector(0, 144, 0), Vector(0, 0, 1), 2.1), False)
sketch2.addConstraint(Sketcher.Constraint("PointOnObject", 0, 3, -2))
sketch2.addConstraint(Sketcher.Constraint("Diameter", 0, 4.3))
sketch2.addConstraint(Sketcher.Constraint("DistanceY", -1, 1, 0, 3, 144.0))
sketch2.setExpression("Constraints[1]", "Params.sketch2_diameter")
pocket1 = body.newObject("PartDesign::Pocket", "Pocket")
pocket1.Profile = sketch2
pocket1.setExpression("Length", "Params.pocket1_length")
pocket1.Reversed = True

doc.recompute()
